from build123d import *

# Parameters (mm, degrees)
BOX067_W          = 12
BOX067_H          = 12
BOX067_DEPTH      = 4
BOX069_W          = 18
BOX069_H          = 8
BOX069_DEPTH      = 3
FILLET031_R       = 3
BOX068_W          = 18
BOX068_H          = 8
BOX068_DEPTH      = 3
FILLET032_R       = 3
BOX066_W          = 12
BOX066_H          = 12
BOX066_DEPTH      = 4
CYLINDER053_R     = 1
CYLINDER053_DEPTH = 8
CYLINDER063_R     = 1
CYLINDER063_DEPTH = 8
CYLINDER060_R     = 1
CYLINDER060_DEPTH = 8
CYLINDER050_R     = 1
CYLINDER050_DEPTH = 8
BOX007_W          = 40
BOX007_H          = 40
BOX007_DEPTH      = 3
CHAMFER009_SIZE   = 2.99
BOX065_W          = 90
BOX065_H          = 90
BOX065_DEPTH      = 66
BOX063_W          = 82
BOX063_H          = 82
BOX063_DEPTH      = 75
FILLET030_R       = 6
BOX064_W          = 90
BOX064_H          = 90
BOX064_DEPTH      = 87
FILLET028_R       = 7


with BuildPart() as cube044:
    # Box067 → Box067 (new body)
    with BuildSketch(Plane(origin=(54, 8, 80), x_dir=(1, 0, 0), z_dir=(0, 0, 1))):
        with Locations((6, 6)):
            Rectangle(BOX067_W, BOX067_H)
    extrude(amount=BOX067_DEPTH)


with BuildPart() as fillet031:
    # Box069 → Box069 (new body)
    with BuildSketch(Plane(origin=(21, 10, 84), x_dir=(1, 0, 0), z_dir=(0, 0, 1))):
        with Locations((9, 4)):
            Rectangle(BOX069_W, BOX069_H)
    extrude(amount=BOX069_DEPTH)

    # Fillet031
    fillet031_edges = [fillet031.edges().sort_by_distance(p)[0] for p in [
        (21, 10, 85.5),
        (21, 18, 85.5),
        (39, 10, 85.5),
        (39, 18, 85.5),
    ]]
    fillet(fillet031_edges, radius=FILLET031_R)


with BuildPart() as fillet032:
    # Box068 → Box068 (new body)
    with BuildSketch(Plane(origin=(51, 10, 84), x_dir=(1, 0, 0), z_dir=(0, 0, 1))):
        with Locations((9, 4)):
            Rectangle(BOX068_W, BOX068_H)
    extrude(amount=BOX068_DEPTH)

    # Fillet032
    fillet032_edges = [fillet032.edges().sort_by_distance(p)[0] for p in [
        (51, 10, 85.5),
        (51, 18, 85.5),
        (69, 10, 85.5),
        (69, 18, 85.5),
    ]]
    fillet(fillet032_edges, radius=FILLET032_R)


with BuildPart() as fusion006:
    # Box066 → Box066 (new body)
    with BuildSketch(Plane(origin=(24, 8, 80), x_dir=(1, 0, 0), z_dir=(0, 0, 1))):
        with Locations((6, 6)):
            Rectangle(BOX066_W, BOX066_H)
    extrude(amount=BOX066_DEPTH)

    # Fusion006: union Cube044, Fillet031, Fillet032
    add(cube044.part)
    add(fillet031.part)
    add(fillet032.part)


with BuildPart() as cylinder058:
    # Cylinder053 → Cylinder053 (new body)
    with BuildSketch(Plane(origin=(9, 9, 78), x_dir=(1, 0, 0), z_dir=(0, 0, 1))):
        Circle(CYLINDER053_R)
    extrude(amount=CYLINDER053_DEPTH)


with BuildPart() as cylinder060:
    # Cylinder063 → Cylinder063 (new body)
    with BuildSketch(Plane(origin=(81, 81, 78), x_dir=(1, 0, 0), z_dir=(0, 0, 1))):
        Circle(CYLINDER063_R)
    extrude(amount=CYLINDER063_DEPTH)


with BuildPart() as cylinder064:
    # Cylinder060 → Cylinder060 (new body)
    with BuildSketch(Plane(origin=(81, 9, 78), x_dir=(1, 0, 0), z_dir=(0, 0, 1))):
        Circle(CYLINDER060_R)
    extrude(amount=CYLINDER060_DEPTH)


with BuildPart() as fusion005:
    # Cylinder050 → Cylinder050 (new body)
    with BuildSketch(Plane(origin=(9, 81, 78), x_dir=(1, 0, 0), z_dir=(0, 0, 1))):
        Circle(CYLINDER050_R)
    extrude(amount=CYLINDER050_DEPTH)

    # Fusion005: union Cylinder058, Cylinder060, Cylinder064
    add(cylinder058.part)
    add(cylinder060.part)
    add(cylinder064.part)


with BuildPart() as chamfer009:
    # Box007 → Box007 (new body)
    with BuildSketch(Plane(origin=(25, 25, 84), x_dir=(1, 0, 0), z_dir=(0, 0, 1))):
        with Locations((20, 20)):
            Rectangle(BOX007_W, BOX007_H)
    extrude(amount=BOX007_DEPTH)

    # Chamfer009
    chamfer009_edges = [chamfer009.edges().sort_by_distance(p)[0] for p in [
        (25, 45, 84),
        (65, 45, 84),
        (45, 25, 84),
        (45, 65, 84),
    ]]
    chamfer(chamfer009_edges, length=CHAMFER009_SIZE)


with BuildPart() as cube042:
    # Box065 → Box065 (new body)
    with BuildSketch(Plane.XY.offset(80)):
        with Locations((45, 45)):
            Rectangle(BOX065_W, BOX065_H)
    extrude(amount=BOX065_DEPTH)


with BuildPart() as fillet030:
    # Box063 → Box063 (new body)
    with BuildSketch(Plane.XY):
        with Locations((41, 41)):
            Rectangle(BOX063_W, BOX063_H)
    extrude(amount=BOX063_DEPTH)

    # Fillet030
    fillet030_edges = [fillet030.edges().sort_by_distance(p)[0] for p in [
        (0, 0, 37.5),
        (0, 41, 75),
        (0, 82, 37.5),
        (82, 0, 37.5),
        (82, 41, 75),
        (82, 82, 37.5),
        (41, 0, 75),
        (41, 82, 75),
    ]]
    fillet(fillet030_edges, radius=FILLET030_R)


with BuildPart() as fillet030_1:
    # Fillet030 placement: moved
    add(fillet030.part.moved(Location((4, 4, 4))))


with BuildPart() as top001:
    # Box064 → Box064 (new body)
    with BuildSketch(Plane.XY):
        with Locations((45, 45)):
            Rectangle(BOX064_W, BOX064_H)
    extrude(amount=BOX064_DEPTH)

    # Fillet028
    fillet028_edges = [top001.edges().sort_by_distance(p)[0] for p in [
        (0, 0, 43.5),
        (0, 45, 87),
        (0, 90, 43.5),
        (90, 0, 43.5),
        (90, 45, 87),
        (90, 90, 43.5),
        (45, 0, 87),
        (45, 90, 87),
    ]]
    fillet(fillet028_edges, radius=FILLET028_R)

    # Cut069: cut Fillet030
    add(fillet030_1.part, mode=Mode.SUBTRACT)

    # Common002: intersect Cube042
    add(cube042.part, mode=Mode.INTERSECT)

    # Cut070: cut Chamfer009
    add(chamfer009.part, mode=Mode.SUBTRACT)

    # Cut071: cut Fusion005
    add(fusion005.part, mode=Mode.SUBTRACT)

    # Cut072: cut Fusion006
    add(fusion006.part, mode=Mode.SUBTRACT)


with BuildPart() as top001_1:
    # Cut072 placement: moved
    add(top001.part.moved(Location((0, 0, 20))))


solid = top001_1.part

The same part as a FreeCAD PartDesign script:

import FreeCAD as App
import Part
import Sketcher
from FreeCAD import Vector
Q = App.Units.Quantity


def edges_at(feature, points):
    """Names of the edges that pass closest to the given points."""
    edges = feature.Shape.Edges
    near = lambda p: min(range(len(edges)), key=lambda i: edges[i].distToShape(Part.Vertex(*p))[0])
    return sorted({f"Edge{near(p) + 1}" for p in points})


def add_polygon(sketch, points):
    """Adds a closed chain of lines whose ends are joined by coincident constraints."""
    first, n = sketch.GeometryCount, len(points)
    for a, b in zip(points, points[1:] + points[:1]):
        sketch.addGeometry(Part.LineSegment(App.Vector(*a, 0), App.Vector(*b, 0)), False)
    for i in range(n):
        sketch.addConstraint(Sketcher.Constraint("Coincident", first + i, 2, first + (i + 1) % n, 1))

doc = App.newDocument("Part")
body = doc.addObject("PartDesign::Body", "Body")

sketch1 = body.newObject("Sketcher::SketchObject", "Sketch")
sketch1.AttachmentSupport = (doc.getObject("XY_Plane"), [""])
sketch1.MapMode = "FlatFace"
sketch1.AttachmentOffset = App.Placement(Vector(0, 0, 80), App.Rotation())
add_polygon(sketch1, [(54, 20), (54, 8), (66, 8), (66, 20)])
sketch1.addConstraint([
    Sketcher.Constraint("Vertical", 0),
    Sketcher.Constraint("Horizontal", 1),
    Sketcher.Constraint("Vertical", 2),
    Sketcher.Constraint("Horizontal", 3),
    Sketcher.Constraint("Equal", 3, 0),
    Sketcher.Constraint("DistanceX", 1, 1, 1, 2, Q("12 mm")),
    Sketcher.Constraint("DistanceX", -1, 1, 0, 2, Q("54 mm")),
    Sketcher.Constraint("DistanceY", -1, 1, 0, 2, Q("8 mm")),
])
pad1 = body.newObject("PartDesign::Pad", "Pad")
pad1.Profile = sketch1
pad1.Length = 4
body2 = doc.addObject("PartDesign::Body", "Body001")

sketch2 = body2.newObject("Sketcher::SketchObject", "Sketch001")
sketch2.AttachmentSupport = (doc.getObject("XY_Plane001"), [""])
sketch2.MapMode = "FlatFace"
sketch2.AttachmentOffset = App.Placement(Vector(0, 0, 84), App.Rotation())
add_polygon(sketch2, [(21, 18), (21, 10), (39, 10), (39, 18)])
sketch2.addConstraint([
    Sketcher.Constraint("Vertical", 0),
    Sketcher.Constraint("Horizontal", 1),
    Sketcher.Constraint("Vertical", 2),
    Sketcher.Constraint("Horizontal", 3),
    Sketcher.Constraint("DistanceX", 1, 1, 1, 2, Q("18 mm")),
    Sketcher.Constraint("DistanceY", 0, 2, 0, 1, Q("8 mm")),
    Sketcher.Constraint("DistanceX", -1, 1, 0, 2, Q("21 mm")),
    Sketcher.Constraint("DistanceY", -1, 1, 0, 2, Q("10 mm")),
])
pad2 = body2.newObject("PartDesign::Pad", "Pad001")
pad2.Profile = sketch2
pad2.Length = 3
doc.recompute()

fillet = body2.newObject("PartDesign::Fillet", "Fillet")
fillet.Base = (pad2, edges_at(pad2, [
    (21, 10, 85.5),
    (21, 18, 85.5),
    (39, 10, 85.5),
    (39, 18, 85.5),
]))
fillet.Radius = 3
body3 = doc.addObject("PartDesign::Body", "Body002")

sketch3 = body3.newObject("Sketcher::SketchObject", "Sketch002")
sketch3.AttachmentSupport = (doc.getObject("XY_Plane002"), [""])
sketch3.MapMode = "FlatFace"
sketch3.AttachmentOffset = App.Placement(Vector(0, 0, 84), App.Rotation())
add_polygon(sketch3, [(51, 18), (51, 10), (69, 10), (69, 18)])
sketch3.addConstraint([
    Sketcher.Constraint("Vertical", 0),
    Sketcher.Constraint("Horizontal", 1),
    Sketcher.Constraint("Vertical", 2),
    Sketcher.Constraint("Horizontal", 3),
    Sketcher.Constraint("DistanceX", 1, 1, 1, 2, Q("18 mm")),
    Sketcher.Constraint("DistanceY", 0, 2, 0, 1, Q("8 mm")),
    Sketcher.Constraint("DistanceX", -1, 1, 0, 2, Q("51 mm")),
    Sketcher.Constraint("DistanceY", -1, 1, 0, 2, Q("10 mm")),
])
pad3 = body3.newObject("PartDesign::Pad", "Pad002")
pad3.Profile = sketch3
pad3.Length = 3
doc.recompute()

fillet2 = body3.newObject("PartDesign::Fillet", "Fillet001")
fillet2.Base = (pad3, edges_at(pad3, [
    (51, 10, 85.5),
    (51, 18, 85.5),
    (69, 10, 85.5),
    (69, 18, 85.5),
]))
fillet2.Radius = 3
body4 = doc.addObject("PartDesign::Body", "Body003")
body4.AllowCompound = True

sketch4 = body4.newObject("Sketcher::SketchObject", "Sketch003")
sketch4.AttachmentSupport = (doc.getObject("XY_Plane003"), [""])
sketch4.MapMode = "FlatFace"
sketch4.AttachmentOffset = App.Placement(Vector(0, 0, 80), App.Rotation())
add_polygon(sketch4, [(24, 20), (24, 8), (36, 8), (36, 20)])
sketch4.addConstraint([
    Sketcher.Constraint("Vertical", 0),
    Sketcher.Constraint("Horizontal", 1),
    Sketcher.Constraint("Vertical", 2),
    Sketcher.Constraint("Horizontal", 3),
    Sketcher.Constraint("Equal", 3, 0),
    Sketcher.Constraint("DistanceX", 1, 1, 1, 2, Q("12 mm")),
    Sketcher.Constraint("DistanceX", -1, 1, 0, 2, Q("24 mm")),
    Sketcher.Constraint("DistanceY", -1, 1, 0, 2, Q("8 mm")),
])
pad4 = body4.newObject("PartDesign::Pad", "Pad003")
pad4.Profile = sketch4
pad4.Length = 4
doc.recompute()

boolean = body4.newObject("PartDesign::Boolean", "Boolean")
boolean.Type = "Fuse"
boolean.addObjects([body])
doc.recompute()

boolean2 = body4.newObject("PartDesign::Boolean", "Boolean001")
boolean2.Type = "Fuse"
boolean2.addObjects([body2])
doc.recompute()

boolean3 = body4.newObject("PartDesign::Boolean", "Boolean002")
boolean3.Type = "Fuse"
boolean3.addObjects([body3])
body5 = doc.addObject("PartDesign::Body", "Body004")

sketch5 = body5.newObject("Sketcher::SketchObject", "Sketch004")
sketch5.AttachmentSupport = (doc.getObject("XY_Plane004"), [""])
sketch5.MapMode = "FlatFace"
sketch5.AttachmentOffset = App.Placement(Vector(0, 0, 78), App.Rotation())
sketch5.addGeometry(Part.Circle(Vector(9, 9, 0), Vector(0, 0, 1), 1), False)
sketch5.addConstraint([
    Sketcher.Constraint("Diameter", 0, Q("2 mm")),
    Sketcher.Constraint("DistanceX", -1, 1, 0, 3, Q("9 mm")),
    Sketcher.Constraint("DistanceY", -1, 1, 0, 3, Q("9 mm")),
])
pad5 = body5.newObject("PartDesign::Pad", "Pad004")
pad5.Profile = sketch5
pad5.Length = 8
body6 = doc.addObject("PartDesign::Body", "Body005")

sketch6 = body6.newObject("Sketcher::SketchObject", "Sketch005")
sketch6.AttachmentSupport = (doc.getObject("XY_Plane005"), [""])
sketch6.MapMode = "FlatFace"
sketch6.AttachmentOffset = App.Placement(Vector(0, 0, 78), App.Rotation())
sketch6.addGeometry(Part.Circle(Vector(81, 81, 0), Vector(0, 0, 1), 1), False)
sketch6.addConstraint([
    Sketcher.Constraint("Diameter", 0, Q("2 mm")),
    Sketcher.Constraint("DistanceX", -1, 1, 0, 3, Q("81 mm")),
    Sketcher.Constraint("DistanceY", -1, 1, 0, 3, Q("81 mm")),
])
pad6 = body6.newObject("PartDesign::Pad", "Pad005")
pad6.Profile = sketch6
pad6.Length = 8
body7 = doc.addObject("PartDesign::Body", "Body006")

sketch7 = body7.newObject("Sketcher::SketchObject", "Sketch006")
sketch7.AttachmentSupport = (doc.getObject("XY_Plane006"), [""])
sketch7.MapMode = "FlatFace"
sketch7.AttachmentOffset = App.Placement(Vector(0, 0, 78), App.Rotation())
sketch7.addGeometry(Part.Circle(Vector(81, 9, 0), Vector(0, 0, 1), 1), False)
sketch7.addConstraint([
    Sketcher.Constraint("Diameter", 0, Q("2 mm")),
    Sketcher.Constraint("DistanceX", -1, 1, 0, 3, Q("81 mm")),
    Sketcher.Constraint("DistanceY", -1, 1, 0, 3, Q("9 mm")),
])
pad7 = body7.newObject("PartDesign::Pad", "Pad006")
pad7.Profile = sketch7
pad7.Length = 8
body8 = doc.addObject("PartDesign::Body", "Body007")
body8.AllowCompound = True

sketch8 = body8.newObject("Sketcher::SketchObject", "Sketch007")
sketch8.AttachmentSupport = (doc.getObject("XY_Plane007"), [""])
sketch8.MapMode = "FlatFace"
sketch8.AttachmentOffset = App.Placement(Vector(0, 0, 78), App.Rotation())
sketch8.addGeometry(Part.Circle(Vector(9, 81, 0), Vector(0, 0, 1), 1), False)
sketch8.addConstraint([
    Sketcher.Constraint("Diameter", 0, Q("2 mm")),
    Sketcher.Constraint("DistanceX", -1, 1, 0, 3, Q("9 mm")),
    Sketcher.Constraint("DistanceY", -1, 1, 0, 3, Q("81 mm")),
])
pad8 = body8.newObject("PartDesign::Pad", "Pad007")
pad8.Profile = sketch8
pad8.Length = 8
doc.recompute()

boolean4 = body8.newObject("PartDesign::Boolean", "Boolean003")
boolean4.Type = "Fuse"
boolean4.addObjects([body5])
doc.recompute()

boolean5 = body8.newObject("PartDesign::Boolean", "Boolean004")
boolean5.Type = "Fuse"
boolean5.addObjects([body6])
doc.recompute()

boolean6 = body8.newObject("PartDesign::Boolean", "Boolean005")
boolean6.Type = "Fuse"
boolean6.addObjects([body7])
body9 = doc.addObject("PartDesign::Body", "Body008")

sketch9 = body9.newObject("Sketcher::SketchObject", "Sketch008")
sketch9.AttachmentSupport = (doc.getObject("XY_Plane008"), [""])
sketch9.MapMode = "FlatFace"
sketch9.AttachmentOffset = App.Placement(Vector(0, 0, 84), App.Rotation())
add_polygon(sketch9, [(25, 65), (25, 25), (65, 25), (65, 65)])
sketch9.addConstraint([
    Sketcher.Constraint("Vertical", 0),
    Sketcher.Constraint("Horizontal", 1),
    Sketcher.Constraint("Vertical", 2),
    Sketcher.Constraint("Horizontal", 3),
    Sketcher.Constraint("Equal", 3, 0),
    Sketcher.Constraint("DistanceX", 1, 1, 1, 2, Q("40 mm")),
    Sketcher.Constraint("DistanceX", -1, 1, 0, 2, Q("25 mm")),
    Sketcher.Constraint("DistanceY", -1, 1, 0, 2, Q("25 mm")),
])
pad9 = body9.newObject("PartDesign::Pad", "Pad008")
pad9.Profile = sketch9
pad9.Length = 3
doc.recompute()

chamfer = body9.newObject("PartDesign::Chamfer", "Chamfer")
chamfer.Base = (pad9, edges_at(pad9, [
    (25, 45, 84),
    (65, 45, 84),
    (45, 25, 84),
    (45, 65, 84),
]))
chamfer.Size = 2.99
body10 = doc.addObject("PartDesign::Body", "Body009")

sketch10 = body10.newObject("Sketcher::SketchObject", "Sketch009")
sketch10.AttachmentSupport = (doc.getObject("XY_Plane009"), [""])
sketch10.MapMode = "FlatFace"
sketch10.AttachmentOffset = App.Placement(Vector(0, 0, 80), App.Rotation())
add_polygon(sketch10, [(0, 90), (0, 0), (90, 0), (90, 90)])
sketch10.addConstraint([
    Sketcher.Constraint("Vertical", 0),
    Sketcher.Constraint("Horizontal", 1),
    Sketcher.Constraint("Vertical", 2),
    Sketcher.Constraint("Horizontal", 3),
    Sketcher.Constraint("Coincident", 0, 2, -1, 1),
    Sketcher.Constraint("Equal", 3, 0),
    Sketcher.Constraint("DistanceX", 1, 1, 1, 2, Q("90 mm")),
])
pad10 = body10.newObject("PartDesign::Pad", "Pad009")
pad10.Profile = sketch10
pad10.Length = 66
body11 = doc.addObject("PartDesign::Body", "Body010")

sketch11 = body11.newObject("Sketcher::SketchObject", "Sketch010")
sketch11.AttachmentSupport = (doc.getObject("XY_Plane010"), [""])
sketch11.MapMode = "FlatFace"
add_polygon(sketch11, [(0, 82), (0, 0), (82, 0), (82, 82)])
sketch11.addConstraint([
    Sketcher.Constraint("Vertical", 0),
    Sketcher.Constraint("Horizontal", 1),
    Sketcher.Constraint("Vertical", 2),
    Sketcher.Constraint("Horizontal", 3),
    Sketcher.Constraint("Coincident", 0, 2, -1, 1),
    Sketcher.Constraint("Equal", 3, 0),
    Sketcher.Constraint("DistanceX", 1, 1, 1, 2, Q("82 mm")),
])
pad11 = body11.newObject("PartDesign::Pad", "Pad010")
pad11.Profile = sketch11
pad11.Length = 75
doc.recompute()

fillet3 = body11.newObject("PartDesign::Fillet", "Fillet002")
fillet3.Base = (pad11, edges_at(pad11, [
    (0, 0, 37.5),
    (0, 41, 75),
    (0, 82, 37.5),
    (82, 0, 37.5),
    (82, 41, 75),
    (82, 82, 37.5),
    (41, 0, 75),
    (41, 82, 75),
]))
fillet3.Radius = 6
body12 = doc.addObject("PartDesign::Body", "Body011")
doc.recompute()

body11.Placement = App.Placement(Vector(4, 4, 4), App.Rotation(Vector(0, 0, 1), 0))
boolean7 = body12.newObject("PartDesign::Boolean", "Boolean006")
boolean7.Type = "Fuse"
boolean7.addObjects([body11])
body13 = doc.addObject("PartDesign::Body", "Body012")

sketch12 = body13.newObject("Sketcher::SketchObject", "Sketch011")
sketch12.AttachmentSupport = (doc.getObject("XY_Plane012"), [""])
sketch12.MapMode = "FlatFace"
add_polygon(sketch12, [(0, 90), (0, 0), (90, 0), (90, 90)])
sketch12.addConstraint([
    Sketcher.Constraint("Vertical", 0),
    Sketcher.Constraint("Horizontal", 1),
    Sketcher.Constraint("Vertical", 2),
    Sketcher.Constraint("Horizontal", 3),
    Sketcher.Constraint("Coincident", 0, 2, -1, 1),
    Sketcher.Constraint("Equal", 3, 0),
    Sketcher.Constraint("DistanceX", 1, 1, 1, 2, Q("90 mm")),
])
pad12 = body13.newObject("PartDesign::Pad", "Pad011")
pad12.Profile = sketch12
pad12.Length = 87
doc.recompute()

fillet4 = body13.newObject("PartDesign::Fillet", "Fillet003")
fillet4.Base = (pad12, edges_at(pad12, [
    (0, 0, 43.5),
    (0, 45, 87),
    (0, 90, 43.5),
    (90, 0, 43.5),
    (90, 45, 87),
    (90, 90, 43.5),
    (45, 0, 87),
    (45, 90, 87),
]))
fillet4.Radius = 7
doc.recompute()

boolean8 = body13.newObject("PartDesign::Boolean", "Boolean007")
boolean8.Type = "Cut"
boolean8.addObjects([body12])
doc.recompute()

boolean9 = body13.newObject("PartDesign::Boolean", "Boolean008")
boolean9.Type = "Common"
boolean9.addObjects([body10])
doc.recompute()

boolean10 = body13.newObject("PartDesign::Boolean", "Boolean009")
boolean10.Type = "Cut"
boolean10.addObjects([body9])
doc.recompute()

boolean11 = body13.newObject("PartDesign::Boolean", "Boolean010")
boolean11.Type = "Cut"
boolean11.addObjects([body8])
doc.recompute()

boolean12 = body13.newObject("PartDesign::Boolean", "Boolean011")
boolean12.Type = "Cut"
boolean12.addObjects([body4])
body14 = doc.addObject("PartDesign::Body", "Body013")
doc.recompute()

body13.Placement = App.Placement(Vector(0, 0, 20), App.Rotation(Vector(0, 0, 1), 0))
boolean13 = body14.newObject("PartDesign::Boolean", "Boolean012")
boolean13.Type = "Fuse"
boolean13.addObjects([body13])

doc.recompute()
